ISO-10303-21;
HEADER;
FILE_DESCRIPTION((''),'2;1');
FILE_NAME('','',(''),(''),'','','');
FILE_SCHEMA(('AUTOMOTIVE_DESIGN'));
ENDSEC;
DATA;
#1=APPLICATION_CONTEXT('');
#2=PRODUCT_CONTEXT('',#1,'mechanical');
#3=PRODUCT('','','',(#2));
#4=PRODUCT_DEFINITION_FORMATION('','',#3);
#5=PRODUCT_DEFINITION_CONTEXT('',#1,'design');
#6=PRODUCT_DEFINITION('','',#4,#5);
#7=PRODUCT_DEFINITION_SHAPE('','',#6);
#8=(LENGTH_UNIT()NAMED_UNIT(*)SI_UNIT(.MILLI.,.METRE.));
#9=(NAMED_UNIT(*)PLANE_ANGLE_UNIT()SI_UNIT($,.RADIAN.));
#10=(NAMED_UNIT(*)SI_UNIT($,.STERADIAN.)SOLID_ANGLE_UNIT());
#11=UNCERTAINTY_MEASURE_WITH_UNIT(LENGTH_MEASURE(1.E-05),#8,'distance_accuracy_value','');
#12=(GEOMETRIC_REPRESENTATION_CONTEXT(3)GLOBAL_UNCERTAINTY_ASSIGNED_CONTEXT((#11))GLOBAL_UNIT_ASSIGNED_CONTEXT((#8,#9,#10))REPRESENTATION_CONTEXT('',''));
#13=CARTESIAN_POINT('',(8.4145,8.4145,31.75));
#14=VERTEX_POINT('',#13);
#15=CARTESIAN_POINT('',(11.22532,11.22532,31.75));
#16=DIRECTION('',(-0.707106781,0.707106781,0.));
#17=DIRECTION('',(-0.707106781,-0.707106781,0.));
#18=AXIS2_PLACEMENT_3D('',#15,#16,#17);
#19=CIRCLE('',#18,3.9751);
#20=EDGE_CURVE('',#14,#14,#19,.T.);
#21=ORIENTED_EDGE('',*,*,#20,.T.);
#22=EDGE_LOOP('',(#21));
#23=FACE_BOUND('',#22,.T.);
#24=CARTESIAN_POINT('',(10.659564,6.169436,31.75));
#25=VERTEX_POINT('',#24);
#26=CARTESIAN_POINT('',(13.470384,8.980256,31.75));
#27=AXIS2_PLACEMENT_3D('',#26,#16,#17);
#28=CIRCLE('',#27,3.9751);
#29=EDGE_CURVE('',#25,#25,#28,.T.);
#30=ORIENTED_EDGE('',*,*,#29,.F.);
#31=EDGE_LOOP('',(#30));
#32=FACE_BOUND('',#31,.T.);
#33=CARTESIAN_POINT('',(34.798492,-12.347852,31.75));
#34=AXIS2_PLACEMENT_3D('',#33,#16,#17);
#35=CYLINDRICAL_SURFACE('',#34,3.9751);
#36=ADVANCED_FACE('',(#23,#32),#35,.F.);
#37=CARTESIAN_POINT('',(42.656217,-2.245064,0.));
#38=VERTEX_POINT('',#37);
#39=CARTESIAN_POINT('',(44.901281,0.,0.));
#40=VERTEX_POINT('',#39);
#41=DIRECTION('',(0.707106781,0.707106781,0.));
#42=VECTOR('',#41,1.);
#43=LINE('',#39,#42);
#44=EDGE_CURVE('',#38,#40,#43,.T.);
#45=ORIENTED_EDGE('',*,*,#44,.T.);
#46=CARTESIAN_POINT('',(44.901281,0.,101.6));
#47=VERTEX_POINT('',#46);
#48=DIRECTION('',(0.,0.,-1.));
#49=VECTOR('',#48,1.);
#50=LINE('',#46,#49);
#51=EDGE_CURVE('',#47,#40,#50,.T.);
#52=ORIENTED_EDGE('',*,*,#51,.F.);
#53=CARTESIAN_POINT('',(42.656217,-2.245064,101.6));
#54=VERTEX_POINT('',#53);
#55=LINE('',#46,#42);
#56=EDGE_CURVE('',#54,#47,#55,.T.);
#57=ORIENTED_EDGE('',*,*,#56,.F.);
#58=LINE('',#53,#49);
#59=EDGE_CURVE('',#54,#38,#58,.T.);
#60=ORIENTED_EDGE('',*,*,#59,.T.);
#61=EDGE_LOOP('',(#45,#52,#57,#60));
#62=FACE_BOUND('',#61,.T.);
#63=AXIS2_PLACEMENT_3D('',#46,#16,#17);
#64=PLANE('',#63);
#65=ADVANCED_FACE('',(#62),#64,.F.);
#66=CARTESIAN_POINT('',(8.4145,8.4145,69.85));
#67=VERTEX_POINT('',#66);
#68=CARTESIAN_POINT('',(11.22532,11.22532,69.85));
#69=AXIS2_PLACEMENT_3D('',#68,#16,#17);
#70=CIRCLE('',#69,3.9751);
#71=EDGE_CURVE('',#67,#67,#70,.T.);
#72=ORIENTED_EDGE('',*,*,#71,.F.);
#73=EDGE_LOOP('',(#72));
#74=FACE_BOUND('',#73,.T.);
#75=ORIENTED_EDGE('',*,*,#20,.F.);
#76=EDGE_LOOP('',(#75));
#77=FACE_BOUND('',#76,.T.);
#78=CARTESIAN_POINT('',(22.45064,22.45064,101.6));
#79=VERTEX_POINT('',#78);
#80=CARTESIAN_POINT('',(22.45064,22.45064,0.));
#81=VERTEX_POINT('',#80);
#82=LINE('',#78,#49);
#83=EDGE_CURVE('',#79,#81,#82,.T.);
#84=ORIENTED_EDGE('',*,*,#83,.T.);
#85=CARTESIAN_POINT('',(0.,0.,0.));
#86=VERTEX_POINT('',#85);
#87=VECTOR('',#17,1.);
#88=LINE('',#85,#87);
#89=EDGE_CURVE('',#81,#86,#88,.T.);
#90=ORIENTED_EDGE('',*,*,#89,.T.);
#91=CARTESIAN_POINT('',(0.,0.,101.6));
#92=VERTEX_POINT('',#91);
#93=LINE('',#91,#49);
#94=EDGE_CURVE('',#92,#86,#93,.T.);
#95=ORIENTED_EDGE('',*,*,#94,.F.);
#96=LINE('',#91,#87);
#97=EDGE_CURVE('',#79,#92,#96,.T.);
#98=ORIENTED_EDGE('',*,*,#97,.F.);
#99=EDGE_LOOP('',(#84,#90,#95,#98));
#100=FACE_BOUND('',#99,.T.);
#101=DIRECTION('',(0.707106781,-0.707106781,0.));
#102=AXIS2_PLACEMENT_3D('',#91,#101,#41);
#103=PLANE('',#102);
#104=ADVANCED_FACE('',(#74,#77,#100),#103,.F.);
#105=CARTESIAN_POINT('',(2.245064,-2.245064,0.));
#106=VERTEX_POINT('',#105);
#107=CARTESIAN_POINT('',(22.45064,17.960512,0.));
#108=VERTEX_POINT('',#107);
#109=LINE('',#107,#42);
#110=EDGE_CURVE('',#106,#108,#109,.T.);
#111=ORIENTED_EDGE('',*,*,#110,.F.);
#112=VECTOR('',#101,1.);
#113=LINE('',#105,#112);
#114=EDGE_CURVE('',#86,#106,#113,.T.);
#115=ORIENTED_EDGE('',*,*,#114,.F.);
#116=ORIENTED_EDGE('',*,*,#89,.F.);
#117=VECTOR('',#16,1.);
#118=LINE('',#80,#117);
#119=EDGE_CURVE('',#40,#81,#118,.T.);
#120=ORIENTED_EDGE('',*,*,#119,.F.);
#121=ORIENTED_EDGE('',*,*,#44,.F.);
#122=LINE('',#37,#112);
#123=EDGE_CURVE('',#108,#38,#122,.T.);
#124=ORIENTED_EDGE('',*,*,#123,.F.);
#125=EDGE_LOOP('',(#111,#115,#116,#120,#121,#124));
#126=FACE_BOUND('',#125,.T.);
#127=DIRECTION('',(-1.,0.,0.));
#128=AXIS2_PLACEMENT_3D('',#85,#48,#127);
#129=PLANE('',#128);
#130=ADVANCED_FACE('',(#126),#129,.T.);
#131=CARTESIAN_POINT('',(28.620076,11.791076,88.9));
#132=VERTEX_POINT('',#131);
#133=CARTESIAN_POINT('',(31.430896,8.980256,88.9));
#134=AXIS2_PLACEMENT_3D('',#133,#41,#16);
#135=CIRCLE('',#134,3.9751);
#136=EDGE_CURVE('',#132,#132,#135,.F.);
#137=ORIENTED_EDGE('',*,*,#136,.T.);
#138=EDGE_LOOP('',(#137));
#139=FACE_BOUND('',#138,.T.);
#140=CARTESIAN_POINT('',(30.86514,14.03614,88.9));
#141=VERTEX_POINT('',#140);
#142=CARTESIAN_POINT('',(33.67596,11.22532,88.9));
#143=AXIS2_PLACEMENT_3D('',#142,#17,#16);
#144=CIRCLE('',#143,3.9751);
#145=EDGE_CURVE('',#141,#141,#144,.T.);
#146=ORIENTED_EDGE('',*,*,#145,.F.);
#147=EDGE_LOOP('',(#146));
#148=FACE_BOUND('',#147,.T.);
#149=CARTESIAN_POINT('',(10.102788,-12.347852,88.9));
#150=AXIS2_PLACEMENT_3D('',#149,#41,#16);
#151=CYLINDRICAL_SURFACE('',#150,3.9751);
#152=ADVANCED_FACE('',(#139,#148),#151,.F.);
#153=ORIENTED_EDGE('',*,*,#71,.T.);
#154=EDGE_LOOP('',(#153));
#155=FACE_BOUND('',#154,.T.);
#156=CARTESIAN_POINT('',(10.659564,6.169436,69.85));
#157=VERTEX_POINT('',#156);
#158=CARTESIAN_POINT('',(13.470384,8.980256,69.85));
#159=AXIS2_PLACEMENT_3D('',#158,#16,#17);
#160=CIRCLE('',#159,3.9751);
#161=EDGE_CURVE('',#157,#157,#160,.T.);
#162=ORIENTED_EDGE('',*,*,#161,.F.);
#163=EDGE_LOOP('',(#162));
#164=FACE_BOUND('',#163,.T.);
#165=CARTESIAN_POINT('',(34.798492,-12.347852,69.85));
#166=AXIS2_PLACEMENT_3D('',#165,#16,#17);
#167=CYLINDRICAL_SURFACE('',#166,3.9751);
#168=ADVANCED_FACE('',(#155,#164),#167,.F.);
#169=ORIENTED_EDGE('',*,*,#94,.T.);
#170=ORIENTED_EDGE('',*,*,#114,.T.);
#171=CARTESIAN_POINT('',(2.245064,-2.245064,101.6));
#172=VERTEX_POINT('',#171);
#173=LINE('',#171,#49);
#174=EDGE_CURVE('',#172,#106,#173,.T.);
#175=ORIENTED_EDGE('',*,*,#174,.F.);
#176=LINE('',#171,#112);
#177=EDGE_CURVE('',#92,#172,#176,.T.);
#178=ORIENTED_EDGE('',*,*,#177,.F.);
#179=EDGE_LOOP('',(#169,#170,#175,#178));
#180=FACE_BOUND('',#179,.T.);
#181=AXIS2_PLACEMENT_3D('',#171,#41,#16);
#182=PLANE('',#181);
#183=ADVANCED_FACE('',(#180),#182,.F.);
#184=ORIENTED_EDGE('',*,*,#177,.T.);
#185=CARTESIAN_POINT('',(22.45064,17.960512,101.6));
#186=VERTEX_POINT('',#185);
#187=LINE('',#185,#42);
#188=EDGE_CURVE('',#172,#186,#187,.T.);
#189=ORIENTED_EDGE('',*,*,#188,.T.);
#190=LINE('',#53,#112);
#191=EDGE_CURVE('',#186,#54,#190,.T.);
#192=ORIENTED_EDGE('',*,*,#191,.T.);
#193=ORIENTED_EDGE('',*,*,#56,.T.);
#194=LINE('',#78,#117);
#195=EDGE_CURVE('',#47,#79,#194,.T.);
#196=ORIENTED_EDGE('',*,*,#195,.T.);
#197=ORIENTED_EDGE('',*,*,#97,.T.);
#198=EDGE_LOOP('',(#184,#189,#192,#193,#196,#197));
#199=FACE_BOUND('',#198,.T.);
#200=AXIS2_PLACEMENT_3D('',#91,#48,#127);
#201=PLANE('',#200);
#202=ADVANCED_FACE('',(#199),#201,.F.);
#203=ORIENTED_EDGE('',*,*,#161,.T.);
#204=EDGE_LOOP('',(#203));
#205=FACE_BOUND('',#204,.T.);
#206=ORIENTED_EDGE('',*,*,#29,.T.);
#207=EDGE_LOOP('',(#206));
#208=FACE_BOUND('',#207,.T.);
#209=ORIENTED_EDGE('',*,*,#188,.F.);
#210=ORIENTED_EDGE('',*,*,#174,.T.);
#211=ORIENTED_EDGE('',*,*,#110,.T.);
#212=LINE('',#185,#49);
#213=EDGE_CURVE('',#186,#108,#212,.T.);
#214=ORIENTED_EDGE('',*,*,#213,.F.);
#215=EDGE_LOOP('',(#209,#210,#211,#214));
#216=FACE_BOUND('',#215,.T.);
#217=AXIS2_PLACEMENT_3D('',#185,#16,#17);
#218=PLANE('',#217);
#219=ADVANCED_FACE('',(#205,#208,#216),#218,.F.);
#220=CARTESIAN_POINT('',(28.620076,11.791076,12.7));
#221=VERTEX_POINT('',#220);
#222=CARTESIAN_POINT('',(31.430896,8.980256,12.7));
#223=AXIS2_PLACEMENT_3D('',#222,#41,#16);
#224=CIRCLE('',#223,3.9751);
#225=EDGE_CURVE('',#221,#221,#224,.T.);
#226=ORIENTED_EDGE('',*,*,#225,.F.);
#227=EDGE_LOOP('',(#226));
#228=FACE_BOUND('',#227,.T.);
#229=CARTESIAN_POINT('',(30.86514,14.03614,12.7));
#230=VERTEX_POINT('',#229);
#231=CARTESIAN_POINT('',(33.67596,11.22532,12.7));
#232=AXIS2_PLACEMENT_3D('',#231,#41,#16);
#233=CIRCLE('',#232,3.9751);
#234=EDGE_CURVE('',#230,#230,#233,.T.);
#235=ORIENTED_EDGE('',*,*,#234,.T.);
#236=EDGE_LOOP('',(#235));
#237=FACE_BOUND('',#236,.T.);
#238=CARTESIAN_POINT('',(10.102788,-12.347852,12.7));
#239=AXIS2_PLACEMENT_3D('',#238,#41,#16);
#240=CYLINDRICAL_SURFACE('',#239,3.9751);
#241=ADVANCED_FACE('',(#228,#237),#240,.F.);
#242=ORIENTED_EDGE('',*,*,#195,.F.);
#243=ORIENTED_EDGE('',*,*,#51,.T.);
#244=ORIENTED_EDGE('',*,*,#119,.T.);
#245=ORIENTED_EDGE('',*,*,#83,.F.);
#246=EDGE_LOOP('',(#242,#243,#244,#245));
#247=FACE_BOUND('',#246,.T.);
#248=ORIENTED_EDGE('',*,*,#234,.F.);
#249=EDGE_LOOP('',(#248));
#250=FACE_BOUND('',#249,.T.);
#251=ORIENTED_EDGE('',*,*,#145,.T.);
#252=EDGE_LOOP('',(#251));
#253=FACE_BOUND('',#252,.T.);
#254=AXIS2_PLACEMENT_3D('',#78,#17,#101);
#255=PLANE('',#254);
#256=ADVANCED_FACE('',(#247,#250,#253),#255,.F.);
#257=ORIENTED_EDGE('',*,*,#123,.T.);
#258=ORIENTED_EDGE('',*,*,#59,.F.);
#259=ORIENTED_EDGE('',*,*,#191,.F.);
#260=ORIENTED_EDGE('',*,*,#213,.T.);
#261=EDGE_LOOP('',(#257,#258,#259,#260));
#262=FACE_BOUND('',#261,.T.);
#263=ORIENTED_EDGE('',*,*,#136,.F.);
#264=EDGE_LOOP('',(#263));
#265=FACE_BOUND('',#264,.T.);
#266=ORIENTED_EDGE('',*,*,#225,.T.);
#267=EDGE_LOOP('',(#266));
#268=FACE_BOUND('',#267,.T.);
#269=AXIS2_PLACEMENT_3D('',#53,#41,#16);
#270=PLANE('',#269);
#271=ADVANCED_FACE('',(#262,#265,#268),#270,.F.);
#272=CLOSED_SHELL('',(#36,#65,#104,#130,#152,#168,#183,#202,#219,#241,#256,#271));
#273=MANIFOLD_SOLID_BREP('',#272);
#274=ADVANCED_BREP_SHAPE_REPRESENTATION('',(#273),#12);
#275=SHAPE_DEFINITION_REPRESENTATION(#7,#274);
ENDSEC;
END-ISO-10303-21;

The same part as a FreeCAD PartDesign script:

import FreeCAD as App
import Part
import Sketcher
from FreeCAD import Vector
Q = App.Units.Quantity

doc = App.newDocument("Part")
body = doc.addObject("PartDesign::Body", "Body")

# Sketch on XY plane
sketch1 = body.newObject("Sketcher::SketchObject", "Sketch")
sketch1.AttachmentSupport = (doc.getObject("XY_Plane"), [""])
sketch1.MapMode = "FlatFace"
sketch1.addGeometry([
    Part.LineSegment(Vector(22.5, 22.5, 0), Vector(0, 0, 0)),  # 0
    Part.LineSegment(Vector(0, 0, 0), Vector(2.2, -2.2, 0)),  # 1
    Part.LineSegment(Vector(2.2, -2.2, 0), Vector(22.5, 18, 0)),  # 2
    Part.LineSegment(Vector(22.5, 18, 0), Vector(42.7, -2.2, 0)),  # 3
    Part.LineSegment(Vector(42.7, -2.2, 0), Vector(44.9, 0, 0)),  # 4
    Part.LineSegment(Vector(44.9, 0, 0), Vector(22.5, 22.5, 0)),  # 5
], False)
sketch1.addConstraint([
    Sketcher.Constraint("Coincident", 0, 2, 1, 1),
    Sketcher.Constraint("Coincident", 1, 2, 2, 1),
    Sketcher.Constraint("Coincident", 2, 2, 3, 1),
    Sketcher.Constraint("Coincident", 3, 2, 4, 1),
    Sketcher.Constraint("Coincident", 4, 2, 5, 1),
    Sketcher.Constraint("Coincident", 5, 2, 0, 1),
    Sketcher.Constraint("Coincident", 0, 2, -1, 1),
    Sketcher.Constraint("PointOnObject", 4, 2, -1),
    Sketcher.Constraint("Perpendicular", 0, 1),
    Sketcher.Constraint("Perpendicular", 1, 2),
    Sketcher.Constraint("Perpendicular", 2, 3),
    Sketcher.Constraint("Perpendicular", 3, 4),
    Sketcher.Constraint("Perpendicular", 4, 5),
    Sketcher.Constraint("Horizontal", 1, 2, 3, 2),
    Sketcher.Constraint("Vertical", 2, 2, 5, 2),
    Sketcher.Constraint("Distance", 0, Q("1.25 in")),
    Sketcher.Constraint("Distance", 1, Q("0.125 in")),
])
pad1 = body.newObject("PartDesign::Pad", "Pad")
pad1.Profile = sketch1
pad1.Length = Q("4 in")

# Sketch on an angled plane
sketch2 = body.newObject("Sketcher::SketchObject", "Sketch001")
sketch2.Placement = App.Placement(Vector(0, 0, 0), App.Rotation(Vector(0, 0, 1), Vector(0.707106781, 0.707106781, 0), Vector(-0.707106781, 0.707106781, 0), "ZXY"))
sketch2.addGeometry([
    Part.Circle(Vector(31.8, 15.9, 0), Vector(0, 0, 1), 4),
    Part.Circle(Vector(69.8, 15.9, 0), Vector(0, 0, 1), 4),
], False)
sketch2.addConstraint([
    Sketcher.Constraint("Equal", 0, 1),
    Sketcher.Constraint("Horizontal", 0, 3, 1, 3),
    Sketcher.Constraint("Diameter", 0, Q("0.313 in")),
    Sketcher.Constraint("DistanceX", 0, 3, 1, 3, Q("1.5 in")),
    Sketcher.Constraint("DistanceX", -1, 1, 0, 3, Q("1.25 in")),
    Sketcher.Constraint("DistanceY", -1, 1, 0, 3, Q("0.625 in")),
])
pocket1 = body.newObject("PartDesign::Pocket", "Pocket")
pocket1.Profile = sketch2
pocket1.Type = "ThroughAll"

# Sketch on an angled plane
sketch3 = body.newObject("Sketcher::SketchObject", "Sketch002")
sketch3.Placement = App.Placement(Vector(22.45064, 22.45064, 0), App.Rotation(Vector(-0.707106781, 0.707106781, 0), Vector(0, 0, 0.999999999), Vector(0.707106781, 0.707106781, 0), "ZXY"))
sketch3.addGeometry(Part.Circle(Vector(-15.9, 12.7, 0), Vector(0, 0, 1), 4), False)
sketch3.addConstraint([
    Sketcher.Constraint("Diameter", 0, Q("0.313 in")),
    Sketcher.Constraint("DistanceY", -1, 1, 0, 3, Q("0.5 in")),
    Sketcher.Constraint("DistanceX", 0, 3, -1, 1, Q("0.625 in")),
])
pocket2 = body.newObject("PartDesign::Pocket", "Pocket001")
pocket2.Profile = sketch3
pocket2.Type = "ThroughAll"
doc.recompute()

datumplane = body.newObject("PartDesign::Plane", "DatumPlane")
datumplane.AttachmentSupport = (doc.getObject("XY_Plane"), [""])
datumplane.MapMode = "FlatFace"
datumplane.AttachmentOffset = App.Placement(Vector(0, 0, 2 * 25.4), App.Rotation())
mirrored = body.newObject("PartDesign::Mirrored", "Mirrored")
mirrored.Originals = [pocket2]
mirrored.MirrorPlane = (datumplane, [""])
body.Tip = mirrored

doc.recompute()
